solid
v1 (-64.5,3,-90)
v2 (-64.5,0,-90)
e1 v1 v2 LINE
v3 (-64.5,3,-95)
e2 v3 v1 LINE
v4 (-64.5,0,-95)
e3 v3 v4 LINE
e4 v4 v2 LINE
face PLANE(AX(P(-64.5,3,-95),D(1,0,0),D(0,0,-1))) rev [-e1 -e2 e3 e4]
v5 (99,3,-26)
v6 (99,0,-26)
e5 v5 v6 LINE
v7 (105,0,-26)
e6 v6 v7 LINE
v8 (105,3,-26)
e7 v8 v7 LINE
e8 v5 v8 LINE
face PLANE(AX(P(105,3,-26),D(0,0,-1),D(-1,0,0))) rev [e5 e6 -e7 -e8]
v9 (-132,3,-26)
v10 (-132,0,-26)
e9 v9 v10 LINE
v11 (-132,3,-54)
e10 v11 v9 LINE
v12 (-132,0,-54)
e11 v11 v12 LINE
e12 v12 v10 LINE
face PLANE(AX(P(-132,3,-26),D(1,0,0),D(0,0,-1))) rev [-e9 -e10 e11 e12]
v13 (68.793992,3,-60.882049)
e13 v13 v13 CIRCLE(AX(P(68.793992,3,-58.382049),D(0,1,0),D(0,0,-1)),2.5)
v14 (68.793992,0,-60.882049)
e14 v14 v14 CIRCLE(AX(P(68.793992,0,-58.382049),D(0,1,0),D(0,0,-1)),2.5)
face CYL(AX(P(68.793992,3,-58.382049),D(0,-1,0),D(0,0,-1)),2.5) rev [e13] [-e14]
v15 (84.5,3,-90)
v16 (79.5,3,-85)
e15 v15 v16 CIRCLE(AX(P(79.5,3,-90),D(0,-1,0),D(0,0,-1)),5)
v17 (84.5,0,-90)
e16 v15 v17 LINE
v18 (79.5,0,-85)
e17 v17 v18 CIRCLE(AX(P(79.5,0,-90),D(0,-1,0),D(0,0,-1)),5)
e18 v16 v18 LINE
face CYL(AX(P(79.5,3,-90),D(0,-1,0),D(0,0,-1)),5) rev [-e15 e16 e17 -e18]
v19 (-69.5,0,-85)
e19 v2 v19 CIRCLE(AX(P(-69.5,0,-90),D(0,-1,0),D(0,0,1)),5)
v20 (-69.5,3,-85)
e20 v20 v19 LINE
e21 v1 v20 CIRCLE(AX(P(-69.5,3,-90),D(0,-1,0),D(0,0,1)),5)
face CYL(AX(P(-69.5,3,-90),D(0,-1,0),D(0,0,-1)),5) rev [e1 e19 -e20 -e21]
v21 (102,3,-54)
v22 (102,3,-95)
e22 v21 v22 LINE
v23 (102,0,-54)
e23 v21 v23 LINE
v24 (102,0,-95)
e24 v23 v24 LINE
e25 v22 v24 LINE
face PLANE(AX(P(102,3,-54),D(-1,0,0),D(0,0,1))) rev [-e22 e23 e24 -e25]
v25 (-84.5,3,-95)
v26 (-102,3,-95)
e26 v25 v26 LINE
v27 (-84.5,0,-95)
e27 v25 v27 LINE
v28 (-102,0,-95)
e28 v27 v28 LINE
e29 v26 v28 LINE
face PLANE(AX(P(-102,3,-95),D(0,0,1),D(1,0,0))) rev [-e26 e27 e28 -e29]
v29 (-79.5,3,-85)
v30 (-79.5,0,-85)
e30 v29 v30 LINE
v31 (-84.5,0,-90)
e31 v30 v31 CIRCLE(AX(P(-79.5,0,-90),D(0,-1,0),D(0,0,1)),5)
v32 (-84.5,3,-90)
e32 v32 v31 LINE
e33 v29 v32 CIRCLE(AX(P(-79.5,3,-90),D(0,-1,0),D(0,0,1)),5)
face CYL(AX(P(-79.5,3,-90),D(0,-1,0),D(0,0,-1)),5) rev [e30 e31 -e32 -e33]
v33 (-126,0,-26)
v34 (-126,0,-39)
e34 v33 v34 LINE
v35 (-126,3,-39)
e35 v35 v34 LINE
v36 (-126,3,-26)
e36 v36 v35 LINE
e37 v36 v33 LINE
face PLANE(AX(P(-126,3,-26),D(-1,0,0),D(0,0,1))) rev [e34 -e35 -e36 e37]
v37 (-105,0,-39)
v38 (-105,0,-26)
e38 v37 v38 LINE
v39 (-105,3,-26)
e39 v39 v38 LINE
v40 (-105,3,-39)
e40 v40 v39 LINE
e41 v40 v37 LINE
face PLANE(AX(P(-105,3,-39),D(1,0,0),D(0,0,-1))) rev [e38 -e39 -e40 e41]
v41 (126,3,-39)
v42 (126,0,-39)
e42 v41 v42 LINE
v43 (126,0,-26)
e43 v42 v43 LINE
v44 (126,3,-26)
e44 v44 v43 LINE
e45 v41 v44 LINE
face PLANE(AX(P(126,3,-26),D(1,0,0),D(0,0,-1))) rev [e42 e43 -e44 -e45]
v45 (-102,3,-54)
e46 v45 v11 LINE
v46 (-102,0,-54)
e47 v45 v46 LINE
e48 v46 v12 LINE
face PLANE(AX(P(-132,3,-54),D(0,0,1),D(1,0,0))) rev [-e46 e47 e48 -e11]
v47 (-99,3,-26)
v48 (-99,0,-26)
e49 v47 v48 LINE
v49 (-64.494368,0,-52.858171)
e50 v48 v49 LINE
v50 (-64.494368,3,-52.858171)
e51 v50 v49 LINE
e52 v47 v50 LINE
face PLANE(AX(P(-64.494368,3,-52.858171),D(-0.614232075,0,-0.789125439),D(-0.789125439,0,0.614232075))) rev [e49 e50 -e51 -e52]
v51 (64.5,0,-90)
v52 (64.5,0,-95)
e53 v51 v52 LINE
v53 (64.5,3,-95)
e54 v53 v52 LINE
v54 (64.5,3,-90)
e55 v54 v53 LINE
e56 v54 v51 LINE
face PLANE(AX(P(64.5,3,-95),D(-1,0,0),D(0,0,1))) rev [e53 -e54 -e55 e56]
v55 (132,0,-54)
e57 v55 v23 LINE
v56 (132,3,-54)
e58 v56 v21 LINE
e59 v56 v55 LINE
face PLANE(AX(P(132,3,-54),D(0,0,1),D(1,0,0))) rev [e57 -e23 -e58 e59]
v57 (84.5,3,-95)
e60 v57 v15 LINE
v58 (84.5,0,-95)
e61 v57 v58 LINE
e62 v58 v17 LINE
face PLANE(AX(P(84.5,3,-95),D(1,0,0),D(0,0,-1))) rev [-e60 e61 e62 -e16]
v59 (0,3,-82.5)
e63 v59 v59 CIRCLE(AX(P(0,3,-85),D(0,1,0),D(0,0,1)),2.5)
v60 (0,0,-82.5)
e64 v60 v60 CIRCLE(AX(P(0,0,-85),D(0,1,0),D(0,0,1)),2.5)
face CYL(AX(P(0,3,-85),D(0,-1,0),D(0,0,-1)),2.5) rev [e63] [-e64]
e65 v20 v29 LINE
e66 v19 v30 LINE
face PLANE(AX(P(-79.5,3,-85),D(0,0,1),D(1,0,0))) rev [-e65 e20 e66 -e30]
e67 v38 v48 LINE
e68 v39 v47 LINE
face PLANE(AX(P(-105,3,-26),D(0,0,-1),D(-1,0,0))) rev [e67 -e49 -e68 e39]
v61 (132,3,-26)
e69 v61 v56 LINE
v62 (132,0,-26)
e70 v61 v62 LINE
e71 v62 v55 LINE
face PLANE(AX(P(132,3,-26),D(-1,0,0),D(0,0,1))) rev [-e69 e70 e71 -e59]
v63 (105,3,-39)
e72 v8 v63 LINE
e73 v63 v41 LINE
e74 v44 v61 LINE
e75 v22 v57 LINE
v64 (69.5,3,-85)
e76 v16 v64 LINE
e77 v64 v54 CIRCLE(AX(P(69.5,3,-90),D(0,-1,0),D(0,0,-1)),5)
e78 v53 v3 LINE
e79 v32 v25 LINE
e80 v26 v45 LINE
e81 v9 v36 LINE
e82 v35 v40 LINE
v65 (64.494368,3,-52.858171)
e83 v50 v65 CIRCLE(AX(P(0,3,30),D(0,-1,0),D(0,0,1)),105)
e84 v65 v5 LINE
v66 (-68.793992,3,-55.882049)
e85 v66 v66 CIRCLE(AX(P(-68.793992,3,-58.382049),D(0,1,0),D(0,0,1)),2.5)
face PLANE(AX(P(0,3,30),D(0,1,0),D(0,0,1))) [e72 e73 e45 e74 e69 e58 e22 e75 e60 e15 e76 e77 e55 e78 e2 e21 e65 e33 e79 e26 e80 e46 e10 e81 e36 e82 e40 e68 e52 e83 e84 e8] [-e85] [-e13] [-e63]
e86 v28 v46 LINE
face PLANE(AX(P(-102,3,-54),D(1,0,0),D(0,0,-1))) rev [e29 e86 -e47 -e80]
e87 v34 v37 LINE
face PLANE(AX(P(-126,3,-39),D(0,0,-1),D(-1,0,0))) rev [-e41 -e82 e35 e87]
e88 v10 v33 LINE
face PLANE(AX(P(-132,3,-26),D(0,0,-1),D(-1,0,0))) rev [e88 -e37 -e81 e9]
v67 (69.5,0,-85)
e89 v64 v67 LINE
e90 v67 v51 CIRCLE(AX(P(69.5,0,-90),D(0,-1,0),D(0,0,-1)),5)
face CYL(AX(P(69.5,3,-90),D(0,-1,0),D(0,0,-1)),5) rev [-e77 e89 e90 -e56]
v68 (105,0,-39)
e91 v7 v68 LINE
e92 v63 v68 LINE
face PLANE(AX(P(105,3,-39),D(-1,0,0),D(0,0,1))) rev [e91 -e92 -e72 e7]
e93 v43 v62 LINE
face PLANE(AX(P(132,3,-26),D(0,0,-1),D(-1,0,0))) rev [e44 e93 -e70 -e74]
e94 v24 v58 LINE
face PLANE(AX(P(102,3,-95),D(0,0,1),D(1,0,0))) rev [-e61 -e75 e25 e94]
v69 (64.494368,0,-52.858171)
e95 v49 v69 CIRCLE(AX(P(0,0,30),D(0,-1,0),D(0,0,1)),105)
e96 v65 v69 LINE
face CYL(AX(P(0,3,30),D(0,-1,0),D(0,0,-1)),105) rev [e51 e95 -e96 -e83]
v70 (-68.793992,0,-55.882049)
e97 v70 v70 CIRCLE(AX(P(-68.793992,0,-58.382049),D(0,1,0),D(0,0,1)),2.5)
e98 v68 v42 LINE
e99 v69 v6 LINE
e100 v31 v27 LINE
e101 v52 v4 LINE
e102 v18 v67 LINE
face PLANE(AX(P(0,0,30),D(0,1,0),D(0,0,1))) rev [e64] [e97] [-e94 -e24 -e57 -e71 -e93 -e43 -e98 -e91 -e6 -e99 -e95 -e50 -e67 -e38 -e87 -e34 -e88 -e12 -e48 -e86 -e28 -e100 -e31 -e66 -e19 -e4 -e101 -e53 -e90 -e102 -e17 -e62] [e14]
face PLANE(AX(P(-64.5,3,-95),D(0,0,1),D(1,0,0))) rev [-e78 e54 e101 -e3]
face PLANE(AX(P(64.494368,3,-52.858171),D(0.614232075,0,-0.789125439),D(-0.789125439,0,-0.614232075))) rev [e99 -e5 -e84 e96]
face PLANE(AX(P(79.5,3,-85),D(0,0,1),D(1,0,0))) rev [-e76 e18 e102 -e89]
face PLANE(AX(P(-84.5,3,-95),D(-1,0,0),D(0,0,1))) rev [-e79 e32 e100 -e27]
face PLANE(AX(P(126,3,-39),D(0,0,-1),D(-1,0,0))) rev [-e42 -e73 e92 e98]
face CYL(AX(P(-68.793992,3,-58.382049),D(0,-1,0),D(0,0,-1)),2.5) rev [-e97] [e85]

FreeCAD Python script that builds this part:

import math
import FreeCAD as App
import Part
import Sketcher
Q = App.Units.Quantity

doc = App.newDocument("Part")
body = doc.addObject("PartDesign::Body", "Body")

sketch1 = body.newObject("Sketcher::SketchObject", "Sketch")
sketch1.AttachmentSupport = (doc.getObject("XZ_Plane"), [""])
sketch1.MapMode = "FlatFace"
sketch1.addGeometry([
    Part.LineSegment(App.Vector(-99, -26, 0), App.Vector(-64.5, -52.9, 0)),
    Part.ArcOfCircle(Part.Circle(App.Vector(0, 30, 0), App.Vector(0, 0, 1), 105), math.radians(-128), math.radians(-52)),
    Part.LineSegment(App.Vector(64.5, -52.9, 0), App.Vector(99, -26, 0)),
    Part.LineSegment(App.Vector(99, -26, 0), App.Vector(105, -26, 0)),
    Part.LineSegment(App.Vector(105, -26, 0), App.Vector(105, -39, 0)),
    Part.LineSegment(App.Vector(105, -39, 0), App.Vector(126, -39, 0)),
    Part.LineSegment(App.Vector(126, -39, 0), App.Vector(126, -26, 0)),
    Part.LineSegment(App.Vector(126, -26, 0), App.Vector(132, -26, 0)),
    Part.LineSegment(App.Vector(132, -26, 0), App.Vector(132, -54, 0)),
    Part.LineSegment(App.Vector(132, -54, 0), App.Vector(102, -54, 0)),
    Part.LineSegment(App.Vector(102, -54, 0), App.Vector(102, -95, 0)),
    Part.LineSegment(App.Vector(102, -95, 0), App.Vector(84.5, -95, 0)),
    Part.LineSegment(App.Vector(84.5, -95, 0), App.Vector(84.5, -90, 0)),
    Part.ArcOfCircle(Part.Circle(App.Vector(79.5, -90, 0), App.Vector(0, 0, 1), 5), math.radians(0), math.radians(90)),
    Part.LineSegment(App.Vector(79.5, -85, 0), App.Vector(69.5, -85, 0)),
    Part.ArcOfCircle(Part.Circle(App.Vector(69.5, -90, 0), App.Vector(0, 0, 1), 5), math.radians(90), math.radians(180)),
    Part.LineSegment(App.Vector(64.5, -90, 0), App.Vector(64.5, -95, 0)),
    Part.LineSegment(App.Vector(64.5, -95, 0), App.Vector(-64.5, -95, 0)),
    Part.LineSegment(App.Vector(-64.5, -95, 0), App.Vector(-64.5, -90, 0)),
    Part.ArcOfCircle(Part.Circle(App.Vector(-69.5, -90, 0), App.Vector(0, 0, 1), 5), math.radians(0), math.radians(90)),
    Part.LineSegment(App.Vector(-69.5, -85, 0), App.Vector(-79.5, -85, 0)),
    Part.ArcOfCircle(Part.Circle(App.Vector(-79.5, -90, 0), App.Vector(0, 0, 1), 5), math.radians(90), math.radians(180)),
    Part.LineSegment(App.Vector(-84.5, -90, 0), App.Vector(-84.5, -95, 0)),
    Part.LineSegment(App.Vector(-84.5, -95, 0), App.Vector(-102, -95, 0)),
    Part.LineSegment(App.Vector(-102, -95, 0), App.Vector(-102, -54, 0)),
    Part.LineSegment(App.Vector(-102, -54, 0), App.Vector(-132, -54, 0)),
    Part.LineSegment(App.Vector(-132, -54, 0), App.Vector(-132, -26, 0)),
    Part.LineSegment(App.Vector(-132, -26, 0), App.Vector(-126, -26, 0)),
    Part.LineSegment(App.Vector(-126, -26, 0), App.Vector(-126, -39, 0)),
    Part.LineSegment(App.Vector(-126, -39, 0), App.Vector(-105, -39, 0)),
    Part.LineSegment(App.Vector(-105, -39, 0), App.Vector(-105, -26, 0)),
    Part.LineSegment(App.Vector(-105, -26, 0), App.Vector(-99, -26, 0)),
    Part.Circle(App.Vector(68.8, -58.4, 0), App.Vector(0, 0, 1), 2.5),
    Part.Circle(App.Vector(-68.8, -58.4, 0), App.Vector(0, 0, 1), 2.5),
    Part.Circle(App.Vector(0, -85, 0), App.Vector(0, 0, 1), 2.5),
], False)
sketch1.addConstraint([
    Sketcher.Constraint("Tangent", 0, 2, 1, 1),
    Sketcher.Constraint("Tangent", 1, 2, 2, 1),
    Sketcher.Constraint("Coincident", 2, 2, 3, 1),
    Sketcher.Constraint("Coincident", 3, 2, 4, 1),
    Sketcher.Constraint("Coincident", 4, 2, 5, 1),
    Sketcher.Constraint("Coincident", 5, 2, 6, 1),
    Sketcher.Constraint("Coincident", 6, 2, 7, 1),
    Sketcher.Constraint("Coincident", 7, 2, 8, 1),
    Sketcher.Constraint("Coincident", 8, 2, 9, 1),
    Sketcher.Constraint("Coincident", 9, 2, 10, 1),
    Sketcher.Constraint("Coincident", 10, 2, 11, 1),
    Sketcher.Constraint("Coincident", 11, 2, 12, 1),
    Sketcher.Constraint("Tangent", 12, 2, 13, 1),
    Sketcher.Constraint("Tangent", 13, 2, 14, 1),
    Sketcher.Constraint("Tangent", 14, 2, 15, 1),
    Sketcher.Constraint("Tangent", 15, 2, 16, 1),
    Sketcher.Constraint("Coincident", 16, 2, 17, 1),
    Sketcher.Constraint("Coincident", 17, 2, 18, 1),
    Sketcher.Constraint("Tangent", 18, 2, 19, 1),
    Sketcher.Constraint("Tangent", 19, 2, 20, 1),
    Sketcher.Constraint("Tangent", 20, 2, 21, 1),
    Sketcher.Constraint("Tangent", 21, 2, 22, 1),
    Sketcher.Constraint("Coincident", 22, 2, 23, 1),
    Sketcher.Constraint("Coincident", 23, 2, 24, 1),
    Sketcher.Constraint("Coincident", 24, 2, 25, 1),
    Sketcher.Constraint("Coincident", 25, 2, 26, 1),
    Sketcher.Constraint("Coincident", 26, 2, 27, 1),
    Sketcher.Constraint("Coincident", 27, 2, 28, 1),
    Sketcher.Constraint("Coincident", 28, 2, 29, 1),
    Sketcher.Constraint("Coincident", 29, 2, 30, 1),
    Sketcher.Constraint("Coincident", 30, 2, 31, 1),
    Sketcher.Constraint("Coincident", 31, 2, 0, 1),
    Sketcher.Constraint("Horizontal", 3),
    Sketcher.Constraint("Vertical", 4),
    Sketcher.Constraint("Horizontal", 5),
    Sketcher.Constraint("Vertical", 6),
    Sketcher.Constraint("Horizontal", 7),
    Sketcher.Constraint("Vertical", 8),
    Sketcher.Constraint("Horizontal", 9),
    Sketcher.Constraint("Vertical", 10),
    Sketcher.Constraint("Horizontal", 11),
    Sketcher.Constraint("Vertical", 12),
    Sketcher.Constraint("Horizontal", 14),
    Sketcher.Constraint("Vertical", 16),
    Sketcher.Constraint("Horizontal", 17),
    Sketcher.Constraint("Vertical", 18),
    Sketcher.Constraint("Horizontal", 20),
    Sketcher.Constraint("Vertical", 22),
    Sketcher.Constraint("Horizontal", 23),
    Sketcher.Constraint("Vertical", 24),
    Sketcher.Constraint("Horizontal", 25),
    Sketcher.Constraint("Vertical", 26),
    Sketcher.Constraint("Horizontal", 27),
    Sketcher.Constraint("Vertical", 28),
    Sketcher.Constraint("Horizontal", 29),
    Sketcher.Constraint("Vertical", 30),
    Sketcher.Constraint("Horizontal", 31),
    Sketcher.Constraint("Equal", 13, 15),
    Sketcher.Constraint("Equal", 15, 19),
    Sketcher.Constraint("Equal", 19, 21),
    Sketcher.Constraint("Equal", 32, 33),
    Sketcher.Constraint("Equal", 33, 34),
    Sketcher.Constraint("Symmetric", 15, 3, 19, 3, -2),
    Sketcher.Constraint("Symmetric", 32, 3, 33, 3, -2),
    Sketcher.Constraint("Symmetric", 0, 2, 1, 2, -2),
    Sketcher.Constraint("Symmetric", 11, 2, 22, 2, -2),
    Sketcher.Constraint("Symmetric", 9, 2, 24, 2, -2),
    Sketcher.Constraint("Symmetric", 7, 2, 26, 2, -2),
    Sketcher.Constraint("Symmetric", 5, 2, 28, 2, -2),
    Sketcher.Constraint("Symmetric", 3, 2, 30, 2, -2),
    Sketcher.Constraint("PointOnObject", 34, 3, -2),
    Sketcher.Constraint("Horizontal", 3, 2, 6, 2),
    Sketcher.Constraint("Horizontal", 34, 3, 13, 2),
    Sketcher.Constraint("Horizontal", 11, 2, 16, 2),
    Sketcher.Constraint("Equal", 3, 7),
    Sketcher.Constraint("Diameter", 32, Q("5 mm")),
    Sketcher.Constraint("Radius", 1, Q("105 mm")),
    Sketcher.Constraint("Radius", 13, Q("5 mm")),
    Sketcher.Constraint("DistanceX", 3, 1, 3, 2, Q("6 mm")),
    Sketcher.Constraint("DistanceX", 5, 1, 5, 2, Q("21 mm")),
    Sketcher.Constraint("DistanceX", 9, 2, 9, 1, Q("30 mm")),
    Sketcher.Constraint("DistanceX", 14, 2, 14, 1, Q("10 mm")),
    Sketcher.Constraint("DistanceX", 17, 2, 17, 1, Q("129 mm")),
    Sketcher.Constraint("DistanceY", 4, 2, 4, 1, Q("13 mm")),
    Sketcher.Constraint("DistanceY", 8, 2, 8, 1, Q("28 mm")),
    Sketcher.Constraint("DistanceY", 10, 2, 10, 1, Q("41 mm")),
    Sketcher.Constraint("DistanceY", 12, 1, 12, 2, Q("5 mm")),
    Sketcher.Constraint("DistanceX", 11, 2, 11, 1, Q("17.5 mm")),
    Sketcher.Constraint("DistanceY", -1, 1, 1, 3, Q("30 mm")),
    Sketcher.Constraint("DistanceY", 13, 3, -1, 1, Q("90 mm")),
    Sketcher.Constraint("DistanceY", 32, 3, -1, 1, Q("58.382049 mm")),
    Sketcher.Constraint("DistanceX", -1, 1, 32, 3, Q("68.793992 mm")),
])
pad1 = body.newObject("PartDesign::Pad", "Pad")
pad1.Profile = sketch1
pad1.Length = 3
pad1.Reversed = True

doc.recompute()
